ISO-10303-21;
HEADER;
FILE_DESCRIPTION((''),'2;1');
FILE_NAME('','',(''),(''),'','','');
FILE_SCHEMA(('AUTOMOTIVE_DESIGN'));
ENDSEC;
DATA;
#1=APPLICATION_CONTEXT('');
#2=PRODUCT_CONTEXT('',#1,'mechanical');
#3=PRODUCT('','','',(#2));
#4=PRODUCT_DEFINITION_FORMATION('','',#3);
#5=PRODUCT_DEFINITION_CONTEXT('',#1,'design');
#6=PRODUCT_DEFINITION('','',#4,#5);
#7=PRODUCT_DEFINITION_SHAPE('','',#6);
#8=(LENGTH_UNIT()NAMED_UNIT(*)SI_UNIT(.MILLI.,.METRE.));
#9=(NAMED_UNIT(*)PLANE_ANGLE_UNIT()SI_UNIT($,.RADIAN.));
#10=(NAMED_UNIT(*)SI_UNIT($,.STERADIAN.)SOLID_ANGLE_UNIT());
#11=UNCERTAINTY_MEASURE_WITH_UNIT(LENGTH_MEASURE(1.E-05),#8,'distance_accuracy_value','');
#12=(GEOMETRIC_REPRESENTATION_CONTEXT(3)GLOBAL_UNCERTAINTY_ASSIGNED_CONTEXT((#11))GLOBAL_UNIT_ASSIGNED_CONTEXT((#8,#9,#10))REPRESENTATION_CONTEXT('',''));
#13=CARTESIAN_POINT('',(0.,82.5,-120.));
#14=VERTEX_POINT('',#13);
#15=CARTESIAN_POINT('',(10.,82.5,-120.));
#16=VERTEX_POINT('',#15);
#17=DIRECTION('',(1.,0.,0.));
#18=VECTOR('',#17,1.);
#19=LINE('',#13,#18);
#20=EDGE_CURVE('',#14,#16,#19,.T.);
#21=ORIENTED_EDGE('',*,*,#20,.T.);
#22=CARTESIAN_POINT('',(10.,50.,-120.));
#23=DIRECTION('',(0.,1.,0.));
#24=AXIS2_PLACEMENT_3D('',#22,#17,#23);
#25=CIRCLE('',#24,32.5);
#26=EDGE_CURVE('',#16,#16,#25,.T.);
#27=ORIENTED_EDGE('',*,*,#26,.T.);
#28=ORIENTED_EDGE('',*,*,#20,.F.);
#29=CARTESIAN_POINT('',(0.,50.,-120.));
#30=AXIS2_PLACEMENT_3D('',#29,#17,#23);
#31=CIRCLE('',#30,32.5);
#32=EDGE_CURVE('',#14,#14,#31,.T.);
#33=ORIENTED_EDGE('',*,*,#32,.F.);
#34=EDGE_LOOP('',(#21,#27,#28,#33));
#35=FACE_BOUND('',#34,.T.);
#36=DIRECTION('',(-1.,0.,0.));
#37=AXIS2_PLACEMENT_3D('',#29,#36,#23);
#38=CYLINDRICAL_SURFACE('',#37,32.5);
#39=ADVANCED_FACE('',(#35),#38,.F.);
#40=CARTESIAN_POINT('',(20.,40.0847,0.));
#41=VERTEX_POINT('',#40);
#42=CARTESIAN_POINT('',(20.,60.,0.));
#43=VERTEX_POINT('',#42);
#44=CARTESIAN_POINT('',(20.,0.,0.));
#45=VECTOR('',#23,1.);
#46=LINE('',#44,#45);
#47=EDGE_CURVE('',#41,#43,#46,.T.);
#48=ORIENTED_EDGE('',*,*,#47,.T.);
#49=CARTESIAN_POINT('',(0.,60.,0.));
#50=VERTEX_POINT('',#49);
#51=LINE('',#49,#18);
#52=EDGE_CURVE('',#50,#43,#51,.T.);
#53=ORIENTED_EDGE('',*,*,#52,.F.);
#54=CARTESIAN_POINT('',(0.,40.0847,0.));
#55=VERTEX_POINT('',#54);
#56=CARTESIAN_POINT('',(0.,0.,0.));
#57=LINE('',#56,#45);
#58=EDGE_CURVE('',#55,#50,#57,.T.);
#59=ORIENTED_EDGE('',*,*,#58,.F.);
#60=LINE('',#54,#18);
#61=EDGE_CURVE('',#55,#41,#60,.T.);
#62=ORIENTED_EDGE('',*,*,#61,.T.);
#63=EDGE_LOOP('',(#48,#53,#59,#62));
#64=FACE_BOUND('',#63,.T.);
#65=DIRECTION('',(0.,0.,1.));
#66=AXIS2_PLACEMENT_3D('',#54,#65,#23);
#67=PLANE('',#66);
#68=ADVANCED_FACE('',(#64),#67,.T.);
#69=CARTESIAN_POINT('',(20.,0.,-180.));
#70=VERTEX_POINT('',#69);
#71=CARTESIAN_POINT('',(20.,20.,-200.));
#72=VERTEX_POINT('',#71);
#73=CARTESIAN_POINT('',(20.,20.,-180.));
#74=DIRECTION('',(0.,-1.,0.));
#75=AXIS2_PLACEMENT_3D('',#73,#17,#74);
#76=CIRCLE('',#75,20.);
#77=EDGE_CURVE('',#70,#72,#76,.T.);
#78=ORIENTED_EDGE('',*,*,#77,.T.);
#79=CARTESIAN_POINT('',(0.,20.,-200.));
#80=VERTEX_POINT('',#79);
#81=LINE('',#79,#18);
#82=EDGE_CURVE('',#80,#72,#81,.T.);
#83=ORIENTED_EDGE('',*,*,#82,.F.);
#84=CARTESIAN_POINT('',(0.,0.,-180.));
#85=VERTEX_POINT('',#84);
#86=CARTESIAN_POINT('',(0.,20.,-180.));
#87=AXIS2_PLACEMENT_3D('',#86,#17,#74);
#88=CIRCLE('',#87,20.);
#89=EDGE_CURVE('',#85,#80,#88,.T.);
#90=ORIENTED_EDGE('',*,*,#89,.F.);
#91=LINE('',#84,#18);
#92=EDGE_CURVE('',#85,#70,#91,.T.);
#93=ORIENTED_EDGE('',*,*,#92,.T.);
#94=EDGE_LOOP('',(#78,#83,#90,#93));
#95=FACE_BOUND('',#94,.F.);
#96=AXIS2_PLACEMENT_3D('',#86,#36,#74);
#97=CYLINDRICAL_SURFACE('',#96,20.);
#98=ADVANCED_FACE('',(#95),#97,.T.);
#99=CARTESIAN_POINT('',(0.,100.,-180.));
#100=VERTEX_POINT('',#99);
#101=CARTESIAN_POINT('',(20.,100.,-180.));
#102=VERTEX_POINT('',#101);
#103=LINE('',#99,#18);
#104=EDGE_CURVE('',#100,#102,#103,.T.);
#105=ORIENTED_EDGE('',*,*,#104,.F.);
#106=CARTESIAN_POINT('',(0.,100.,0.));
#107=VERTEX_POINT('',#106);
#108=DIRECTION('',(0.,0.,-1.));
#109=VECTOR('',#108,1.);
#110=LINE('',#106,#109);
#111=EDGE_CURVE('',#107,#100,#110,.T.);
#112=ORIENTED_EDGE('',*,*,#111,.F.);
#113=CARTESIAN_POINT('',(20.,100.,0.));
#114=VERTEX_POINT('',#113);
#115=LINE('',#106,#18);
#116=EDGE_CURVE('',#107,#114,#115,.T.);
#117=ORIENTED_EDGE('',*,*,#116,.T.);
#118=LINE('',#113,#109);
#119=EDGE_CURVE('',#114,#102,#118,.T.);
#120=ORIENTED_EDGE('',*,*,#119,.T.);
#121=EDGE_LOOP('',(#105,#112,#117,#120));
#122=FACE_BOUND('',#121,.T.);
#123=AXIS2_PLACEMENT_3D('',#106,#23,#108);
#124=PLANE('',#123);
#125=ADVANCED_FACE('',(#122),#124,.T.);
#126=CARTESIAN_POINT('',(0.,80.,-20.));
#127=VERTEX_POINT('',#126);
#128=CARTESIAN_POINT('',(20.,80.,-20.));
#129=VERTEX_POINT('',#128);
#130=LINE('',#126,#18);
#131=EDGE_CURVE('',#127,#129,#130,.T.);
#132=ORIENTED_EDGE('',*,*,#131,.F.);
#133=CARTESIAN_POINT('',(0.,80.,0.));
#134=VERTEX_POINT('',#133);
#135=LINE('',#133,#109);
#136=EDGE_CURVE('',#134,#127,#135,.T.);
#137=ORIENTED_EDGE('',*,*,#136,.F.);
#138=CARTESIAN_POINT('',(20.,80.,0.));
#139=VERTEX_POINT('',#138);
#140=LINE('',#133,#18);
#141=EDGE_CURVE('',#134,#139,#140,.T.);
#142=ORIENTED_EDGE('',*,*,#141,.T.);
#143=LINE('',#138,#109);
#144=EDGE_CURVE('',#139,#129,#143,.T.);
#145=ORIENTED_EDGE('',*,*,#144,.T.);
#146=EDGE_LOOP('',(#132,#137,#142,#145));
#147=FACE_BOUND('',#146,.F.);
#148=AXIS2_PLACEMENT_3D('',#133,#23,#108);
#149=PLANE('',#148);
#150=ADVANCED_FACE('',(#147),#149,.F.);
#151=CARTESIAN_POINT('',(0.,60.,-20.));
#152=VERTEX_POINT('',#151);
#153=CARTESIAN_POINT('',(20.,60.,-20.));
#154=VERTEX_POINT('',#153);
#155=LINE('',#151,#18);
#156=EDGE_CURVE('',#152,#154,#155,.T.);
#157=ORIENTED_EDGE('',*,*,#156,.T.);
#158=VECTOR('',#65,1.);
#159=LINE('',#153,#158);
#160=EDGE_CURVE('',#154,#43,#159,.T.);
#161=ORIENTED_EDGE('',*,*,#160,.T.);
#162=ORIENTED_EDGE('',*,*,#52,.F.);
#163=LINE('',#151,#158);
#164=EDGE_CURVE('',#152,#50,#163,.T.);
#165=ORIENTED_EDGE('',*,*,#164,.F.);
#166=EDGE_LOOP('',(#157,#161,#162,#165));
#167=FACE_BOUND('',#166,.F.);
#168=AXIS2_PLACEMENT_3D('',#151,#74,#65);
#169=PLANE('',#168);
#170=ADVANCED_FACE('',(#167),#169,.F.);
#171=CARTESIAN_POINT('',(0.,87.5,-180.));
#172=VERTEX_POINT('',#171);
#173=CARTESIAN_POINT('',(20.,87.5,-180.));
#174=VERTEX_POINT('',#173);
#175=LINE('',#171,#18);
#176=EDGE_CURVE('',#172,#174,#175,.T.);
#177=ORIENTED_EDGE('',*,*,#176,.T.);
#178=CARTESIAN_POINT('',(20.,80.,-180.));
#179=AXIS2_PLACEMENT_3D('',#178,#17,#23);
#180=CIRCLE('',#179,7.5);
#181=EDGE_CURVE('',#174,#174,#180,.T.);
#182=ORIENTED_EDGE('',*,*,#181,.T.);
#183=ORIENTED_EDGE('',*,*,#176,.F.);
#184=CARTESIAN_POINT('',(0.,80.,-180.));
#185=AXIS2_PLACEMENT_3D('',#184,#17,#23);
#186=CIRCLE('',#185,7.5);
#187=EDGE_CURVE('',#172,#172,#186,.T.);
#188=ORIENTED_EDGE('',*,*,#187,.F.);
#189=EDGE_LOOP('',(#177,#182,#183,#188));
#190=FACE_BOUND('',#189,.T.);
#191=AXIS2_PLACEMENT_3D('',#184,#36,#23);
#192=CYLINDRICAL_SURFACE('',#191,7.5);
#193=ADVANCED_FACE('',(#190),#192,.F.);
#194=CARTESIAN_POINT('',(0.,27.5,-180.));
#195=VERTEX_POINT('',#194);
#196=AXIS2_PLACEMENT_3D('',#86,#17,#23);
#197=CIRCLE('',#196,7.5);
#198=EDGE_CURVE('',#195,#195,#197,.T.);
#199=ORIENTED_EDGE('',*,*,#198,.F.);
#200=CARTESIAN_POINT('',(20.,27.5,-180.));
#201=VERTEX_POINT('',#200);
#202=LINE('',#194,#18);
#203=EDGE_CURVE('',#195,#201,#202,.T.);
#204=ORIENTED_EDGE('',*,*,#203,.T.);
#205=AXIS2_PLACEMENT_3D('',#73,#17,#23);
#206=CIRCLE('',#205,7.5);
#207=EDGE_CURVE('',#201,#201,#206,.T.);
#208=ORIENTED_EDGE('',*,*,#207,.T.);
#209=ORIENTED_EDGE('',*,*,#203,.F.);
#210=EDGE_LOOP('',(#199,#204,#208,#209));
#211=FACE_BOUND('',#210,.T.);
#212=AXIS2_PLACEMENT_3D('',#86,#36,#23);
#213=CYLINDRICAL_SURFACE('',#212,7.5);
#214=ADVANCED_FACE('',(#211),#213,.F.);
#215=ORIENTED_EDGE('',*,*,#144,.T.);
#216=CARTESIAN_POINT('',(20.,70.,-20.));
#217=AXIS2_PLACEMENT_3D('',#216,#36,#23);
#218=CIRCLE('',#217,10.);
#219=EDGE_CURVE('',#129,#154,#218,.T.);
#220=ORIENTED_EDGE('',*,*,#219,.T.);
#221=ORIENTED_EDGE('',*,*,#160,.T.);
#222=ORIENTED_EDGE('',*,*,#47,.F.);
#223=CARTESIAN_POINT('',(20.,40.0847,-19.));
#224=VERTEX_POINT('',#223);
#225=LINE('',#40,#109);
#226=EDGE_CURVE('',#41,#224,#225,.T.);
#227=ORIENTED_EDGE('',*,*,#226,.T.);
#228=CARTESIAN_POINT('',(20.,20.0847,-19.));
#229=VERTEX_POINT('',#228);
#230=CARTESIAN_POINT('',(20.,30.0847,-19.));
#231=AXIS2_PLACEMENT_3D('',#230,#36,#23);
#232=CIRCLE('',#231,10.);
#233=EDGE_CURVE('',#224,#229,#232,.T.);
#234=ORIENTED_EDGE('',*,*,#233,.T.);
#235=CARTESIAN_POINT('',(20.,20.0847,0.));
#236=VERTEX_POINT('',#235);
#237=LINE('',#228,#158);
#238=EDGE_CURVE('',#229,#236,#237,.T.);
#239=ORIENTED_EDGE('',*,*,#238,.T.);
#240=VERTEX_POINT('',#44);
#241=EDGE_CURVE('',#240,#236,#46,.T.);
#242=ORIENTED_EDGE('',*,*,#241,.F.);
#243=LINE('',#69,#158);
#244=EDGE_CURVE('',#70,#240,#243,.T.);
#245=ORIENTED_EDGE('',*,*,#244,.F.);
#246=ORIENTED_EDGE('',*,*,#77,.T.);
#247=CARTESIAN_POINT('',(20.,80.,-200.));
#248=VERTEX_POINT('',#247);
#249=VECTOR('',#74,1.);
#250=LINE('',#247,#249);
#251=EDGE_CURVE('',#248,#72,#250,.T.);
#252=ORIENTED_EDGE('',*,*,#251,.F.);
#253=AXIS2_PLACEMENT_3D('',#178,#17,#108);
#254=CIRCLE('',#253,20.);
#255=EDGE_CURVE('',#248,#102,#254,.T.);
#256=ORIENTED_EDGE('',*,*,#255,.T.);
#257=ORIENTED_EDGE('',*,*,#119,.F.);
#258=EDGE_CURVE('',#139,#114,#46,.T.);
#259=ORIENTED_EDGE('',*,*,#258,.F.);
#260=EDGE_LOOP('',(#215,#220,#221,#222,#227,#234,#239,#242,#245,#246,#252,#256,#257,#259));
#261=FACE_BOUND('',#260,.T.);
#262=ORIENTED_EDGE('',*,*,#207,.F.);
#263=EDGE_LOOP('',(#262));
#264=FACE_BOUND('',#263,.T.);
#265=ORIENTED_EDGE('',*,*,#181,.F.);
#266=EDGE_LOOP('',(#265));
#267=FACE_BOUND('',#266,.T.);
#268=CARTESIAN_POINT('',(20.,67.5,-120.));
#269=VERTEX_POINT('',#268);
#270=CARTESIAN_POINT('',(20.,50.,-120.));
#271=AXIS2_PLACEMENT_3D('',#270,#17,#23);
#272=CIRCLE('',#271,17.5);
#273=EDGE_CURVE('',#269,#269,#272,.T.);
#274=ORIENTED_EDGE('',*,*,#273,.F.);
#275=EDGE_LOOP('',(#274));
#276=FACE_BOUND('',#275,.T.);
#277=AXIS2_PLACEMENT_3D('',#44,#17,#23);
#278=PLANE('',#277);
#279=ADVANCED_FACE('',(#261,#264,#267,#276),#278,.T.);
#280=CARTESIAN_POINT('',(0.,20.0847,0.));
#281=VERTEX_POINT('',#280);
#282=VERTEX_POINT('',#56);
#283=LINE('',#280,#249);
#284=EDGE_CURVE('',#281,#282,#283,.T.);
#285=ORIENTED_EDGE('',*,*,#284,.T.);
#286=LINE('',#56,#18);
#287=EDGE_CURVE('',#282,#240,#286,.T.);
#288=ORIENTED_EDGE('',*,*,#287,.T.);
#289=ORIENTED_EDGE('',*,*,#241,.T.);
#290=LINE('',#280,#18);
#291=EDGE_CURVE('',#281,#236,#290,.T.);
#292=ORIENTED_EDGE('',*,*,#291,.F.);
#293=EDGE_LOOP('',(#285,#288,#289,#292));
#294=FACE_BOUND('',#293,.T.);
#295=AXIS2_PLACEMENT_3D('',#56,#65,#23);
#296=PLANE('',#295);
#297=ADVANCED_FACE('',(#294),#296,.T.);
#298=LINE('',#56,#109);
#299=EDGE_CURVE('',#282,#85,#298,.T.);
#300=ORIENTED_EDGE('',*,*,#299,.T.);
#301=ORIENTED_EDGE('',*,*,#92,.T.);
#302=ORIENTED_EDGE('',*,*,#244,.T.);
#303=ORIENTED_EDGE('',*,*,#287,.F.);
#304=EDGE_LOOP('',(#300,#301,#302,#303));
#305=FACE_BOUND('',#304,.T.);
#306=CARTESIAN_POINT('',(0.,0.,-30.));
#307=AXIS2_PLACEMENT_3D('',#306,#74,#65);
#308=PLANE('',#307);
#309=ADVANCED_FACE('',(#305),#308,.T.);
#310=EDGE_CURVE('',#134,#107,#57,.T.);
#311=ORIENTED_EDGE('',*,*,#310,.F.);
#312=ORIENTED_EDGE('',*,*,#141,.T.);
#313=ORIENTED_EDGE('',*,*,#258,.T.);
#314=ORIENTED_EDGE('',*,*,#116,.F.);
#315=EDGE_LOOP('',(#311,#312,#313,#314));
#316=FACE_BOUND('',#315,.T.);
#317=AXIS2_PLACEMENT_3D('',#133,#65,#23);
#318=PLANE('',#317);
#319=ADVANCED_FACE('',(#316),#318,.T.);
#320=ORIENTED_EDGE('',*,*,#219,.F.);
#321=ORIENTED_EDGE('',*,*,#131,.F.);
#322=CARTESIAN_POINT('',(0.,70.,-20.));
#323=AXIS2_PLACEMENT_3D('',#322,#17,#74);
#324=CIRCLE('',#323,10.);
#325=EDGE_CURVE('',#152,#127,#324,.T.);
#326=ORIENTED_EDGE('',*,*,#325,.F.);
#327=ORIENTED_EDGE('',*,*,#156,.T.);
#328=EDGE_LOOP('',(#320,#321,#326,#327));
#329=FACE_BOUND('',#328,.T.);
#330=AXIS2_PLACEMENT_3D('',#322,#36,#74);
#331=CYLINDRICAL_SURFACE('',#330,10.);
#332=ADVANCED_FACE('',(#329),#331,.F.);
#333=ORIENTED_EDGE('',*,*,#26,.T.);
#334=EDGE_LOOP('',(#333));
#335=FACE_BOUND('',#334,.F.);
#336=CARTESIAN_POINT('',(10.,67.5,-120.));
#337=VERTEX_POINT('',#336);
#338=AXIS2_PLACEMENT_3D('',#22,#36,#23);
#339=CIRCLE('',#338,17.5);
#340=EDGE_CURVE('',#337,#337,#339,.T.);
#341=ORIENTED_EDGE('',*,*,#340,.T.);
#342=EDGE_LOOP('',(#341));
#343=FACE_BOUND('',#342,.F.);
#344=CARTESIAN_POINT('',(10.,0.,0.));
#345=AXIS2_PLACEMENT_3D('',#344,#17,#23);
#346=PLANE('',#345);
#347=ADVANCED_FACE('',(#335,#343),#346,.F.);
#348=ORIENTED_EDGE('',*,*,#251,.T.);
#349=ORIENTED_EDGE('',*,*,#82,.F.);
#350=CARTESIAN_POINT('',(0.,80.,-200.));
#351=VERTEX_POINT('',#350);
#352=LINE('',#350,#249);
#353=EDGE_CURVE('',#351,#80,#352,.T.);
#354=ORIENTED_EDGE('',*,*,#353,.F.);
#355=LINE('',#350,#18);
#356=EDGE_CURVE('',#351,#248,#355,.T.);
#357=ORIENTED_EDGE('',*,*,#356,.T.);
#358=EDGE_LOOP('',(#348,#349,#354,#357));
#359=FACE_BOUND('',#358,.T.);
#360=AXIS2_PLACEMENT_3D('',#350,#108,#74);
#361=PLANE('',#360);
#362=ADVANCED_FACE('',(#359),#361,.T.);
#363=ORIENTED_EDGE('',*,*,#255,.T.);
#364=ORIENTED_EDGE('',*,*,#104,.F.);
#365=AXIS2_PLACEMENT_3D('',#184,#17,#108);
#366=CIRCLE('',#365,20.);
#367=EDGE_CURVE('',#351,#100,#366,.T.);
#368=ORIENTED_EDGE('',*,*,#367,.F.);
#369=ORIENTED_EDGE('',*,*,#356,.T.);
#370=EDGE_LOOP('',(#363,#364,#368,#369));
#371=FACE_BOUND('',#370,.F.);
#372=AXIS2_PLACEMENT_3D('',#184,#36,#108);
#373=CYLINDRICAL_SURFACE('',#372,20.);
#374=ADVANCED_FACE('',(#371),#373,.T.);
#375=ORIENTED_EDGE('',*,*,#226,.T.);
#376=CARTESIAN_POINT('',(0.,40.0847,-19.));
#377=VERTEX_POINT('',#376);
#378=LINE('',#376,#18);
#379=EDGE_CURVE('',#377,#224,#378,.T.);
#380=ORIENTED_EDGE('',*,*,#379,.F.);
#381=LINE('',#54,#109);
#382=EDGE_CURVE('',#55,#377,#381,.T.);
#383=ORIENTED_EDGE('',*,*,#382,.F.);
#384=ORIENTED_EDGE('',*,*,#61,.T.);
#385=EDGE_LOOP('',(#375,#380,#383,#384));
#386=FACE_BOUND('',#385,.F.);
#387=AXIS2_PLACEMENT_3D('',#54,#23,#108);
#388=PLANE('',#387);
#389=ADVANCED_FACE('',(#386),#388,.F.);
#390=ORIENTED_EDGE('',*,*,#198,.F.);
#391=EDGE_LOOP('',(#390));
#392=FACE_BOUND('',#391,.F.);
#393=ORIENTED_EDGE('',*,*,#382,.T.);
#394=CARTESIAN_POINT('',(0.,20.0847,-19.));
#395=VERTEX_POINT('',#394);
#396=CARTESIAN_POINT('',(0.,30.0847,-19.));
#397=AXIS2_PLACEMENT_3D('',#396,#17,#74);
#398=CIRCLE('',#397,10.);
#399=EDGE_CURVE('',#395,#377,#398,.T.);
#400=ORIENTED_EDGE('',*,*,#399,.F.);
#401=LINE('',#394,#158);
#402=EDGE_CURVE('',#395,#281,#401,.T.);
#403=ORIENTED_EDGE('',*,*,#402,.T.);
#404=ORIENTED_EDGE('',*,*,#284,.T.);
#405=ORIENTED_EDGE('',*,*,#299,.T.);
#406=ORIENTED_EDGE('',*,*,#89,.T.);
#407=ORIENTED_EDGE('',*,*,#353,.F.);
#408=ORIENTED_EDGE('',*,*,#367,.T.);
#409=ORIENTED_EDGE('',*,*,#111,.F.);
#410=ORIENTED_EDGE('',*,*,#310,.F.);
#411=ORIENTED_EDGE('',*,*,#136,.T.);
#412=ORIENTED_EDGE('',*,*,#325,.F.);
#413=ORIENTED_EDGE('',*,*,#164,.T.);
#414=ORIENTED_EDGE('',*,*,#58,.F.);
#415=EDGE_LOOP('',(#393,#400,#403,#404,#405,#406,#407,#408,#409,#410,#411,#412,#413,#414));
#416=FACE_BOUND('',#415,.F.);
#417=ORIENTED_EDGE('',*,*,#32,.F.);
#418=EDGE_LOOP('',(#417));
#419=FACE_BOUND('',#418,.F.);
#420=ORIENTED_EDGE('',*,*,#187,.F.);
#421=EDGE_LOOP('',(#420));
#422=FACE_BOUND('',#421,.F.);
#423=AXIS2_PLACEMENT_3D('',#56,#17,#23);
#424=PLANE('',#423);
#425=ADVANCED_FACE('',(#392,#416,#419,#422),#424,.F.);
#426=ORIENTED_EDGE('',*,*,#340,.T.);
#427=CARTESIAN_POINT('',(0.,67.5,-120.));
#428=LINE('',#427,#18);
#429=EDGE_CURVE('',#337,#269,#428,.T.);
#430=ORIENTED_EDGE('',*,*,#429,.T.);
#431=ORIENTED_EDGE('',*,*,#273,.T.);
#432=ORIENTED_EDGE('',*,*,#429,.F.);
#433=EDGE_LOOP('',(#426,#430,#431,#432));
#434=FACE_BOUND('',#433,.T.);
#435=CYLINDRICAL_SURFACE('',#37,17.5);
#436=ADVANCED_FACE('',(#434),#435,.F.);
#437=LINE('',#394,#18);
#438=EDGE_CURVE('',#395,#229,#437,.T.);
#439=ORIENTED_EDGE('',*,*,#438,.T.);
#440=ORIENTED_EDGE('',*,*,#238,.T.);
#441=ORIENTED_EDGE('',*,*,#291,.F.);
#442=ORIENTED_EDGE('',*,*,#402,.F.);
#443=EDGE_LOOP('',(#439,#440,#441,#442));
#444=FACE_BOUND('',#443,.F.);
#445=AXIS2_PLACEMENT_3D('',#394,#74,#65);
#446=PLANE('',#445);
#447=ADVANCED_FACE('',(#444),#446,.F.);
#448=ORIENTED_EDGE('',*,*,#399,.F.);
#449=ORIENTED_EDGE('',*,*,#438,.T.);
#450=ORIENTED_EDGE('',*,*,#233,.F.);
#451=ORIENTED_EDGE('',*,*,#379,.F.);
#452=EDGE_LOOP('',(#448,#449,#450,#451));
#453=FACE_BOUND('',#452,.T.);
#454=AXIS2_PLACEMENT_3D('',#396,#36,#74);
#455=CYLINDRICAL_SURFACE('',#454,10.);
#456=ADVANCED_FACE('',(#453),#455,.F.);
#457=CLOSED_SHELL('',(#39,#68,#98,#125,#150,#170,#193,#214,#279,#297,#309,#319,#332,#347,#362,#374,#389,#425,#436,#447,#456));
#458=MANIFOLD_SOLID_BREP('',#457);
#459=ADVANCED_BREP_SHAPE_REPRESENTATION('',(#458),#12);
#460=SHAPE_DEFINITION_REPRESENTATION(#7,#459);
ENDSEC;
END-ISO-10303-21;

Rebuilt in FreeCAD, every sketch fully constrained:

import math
import FreeCAD as App
import Part
import Sketcher

doc = App.newDocument("Part")
body = doc.addObject("PartDesign::Body", "Body")

sketch1 = body.newObject("Sketcher::SketchObject", "Sketch")
sketch1.AttachmentSupport = (doc.getObject("YZ_Plane"), [""])
sketch1.MapMode = "FlatFace"
sketch1.addGeometry(Part.LineSegment(App.Vector(0, 0, 0), App.Vector(0, -180, 0)), False)
sketch1.addGeometry(Part.ArcOfCircle(Part.Circle(App.Vector(20, -180, 0), App.Vector(0, 0, 1), 20), math.radians(180), math.radians(270)), False)
sketch1.addGeometry(Part.LineSegment(App.Vector(20, -200, 0), App.Vector(80, -200, 0)), False)
sketch1.addGeometry(Part.ArcOfCircle(Part.Circle(App.Vector(80, -180, 0), App.Vector(0, 0, 1), 20), math.radians(-90), math.radians(0)), False)
sketch1.addGeometry(Part.LineSegment(App.Vector(100, -180, 0), App.Vector(100, 0, 0)), False)
sketch1.addGeometry(Part.LineSegment(App.Vector(100, 0, 0), App.Vector(80, 0, 0)), False)
sketch1.addGeometry(Part.LineSegment(App.Vector(80, 0, 0), App.Vector(80, -20, 0)), False)
sketch1.addGeometry(Part.ArcOfCircle(Part.Circle(App.Vector(70, -20, 0), App.Vector(0, 0, 1), 10), math.radians(180), math.radians(360)), False)
sketch1.addGeometry(Part.LineSegment(App.Vector(60, -20, 0), App.Vector(60, 0, 0)), False)
sketch1.addGeometry(Part.LineSegment(App.Vector(60, 0, 0), App.Vector(40, 0, 0)), False)
sketch1.addGeometry(Part.LineSegment(App.Vector(40, 0, 0), App.Vector(40, -19, 0)), False)
sketch1.addGeometry(Part.ArcOfCircle(Part.Circle(App.Vector(30, -19, 0), App.Vector(0, 0, 1), 10), math.radians(180), math.radians(360)), False)
sketch1.addGeometry(Part.LineSegment(App.Vector(20, -19, 0), App.Vector(20, 0, 0)), False)
sketch1.addGeometry(Part.LineSegment(App.Vector(20, 0, 0), App.Vector(0, 0, 0)), False)
sketch1.addGeometry(Part.Circle(App.Vector(20, -180, 0), App.Vector(0, 0, 1), 8), False)
sketch1.addGeometry(Part.Circle(App.Vector(80, -180, 0), App.Vector(0, 0, 1), 8), False)
sketch1.addGeometry(Part.Circle(App.Vector(50, -120, 0), App.Vector(0, 0, 1), 18), False)
sketch1.addConstraint(Sketcher.Constraint("Tangent", 0, 2, 1, 1))
sketch1.addConstraint(Sketcher.Constraint("Tangent", 1, 2, 2, 1))
sketch1.addConstraint(Sketcher.Constraint("Tangent", 2, 2, 3, 1))
sketch1.addConstraint(Sketcher.Constraint("Tangent", 3, 2, 4, 1))
sketch1.addConstraint(Sketcher.Constraint("Coincident", 4, 2, 5, 1))
sketch1.addConstraint(Sketcher.Constraint("Coincident", 5, 2, 6, 1))
sketch1.addConstraint(Sketcher.Constraint("Tangent", 6, 2, 7, 2))
sketch1.addConstraint(Sketcher.Constraint("Tangent", 7, 1, 8, 1))
sketch1.addConstraint(Sketcher.Constraint("Coincident", 8, 2, 9, 1))
sketch1.addConstraint(Sketcher.Constraint("Coincident", 9, 2, 10, 1))
sketch1.addConstraint(Sketcher.Constraint("Tangent", 10, 2, 11, 2))
sketch1.addConstraint(Sketcher.Constraint("Tangent", 11, 1, 12, 1))
sketch1.addConstraint(Sketcher.Constraint("Coincident", 12, 2, 13, 1))
sketch1.addConstraint(Sketcher.Constraint("Coincident", 13, 2, 0, 1))
sketch1.addConstraint(Sketcher.Constraint("Vertical", 0))
sketch1.addConstraint(Sketcher.Constraint("Horizontal", 2))
sketch1.addConstraint(Sketcher.Constraint("Vertical", 4))
sketch1.addConstraint(Sketcher.Constraint("Horizontal", 5))
sketch1.addConstraint(Sketcher.Constraint("Vertical", 6))
sketch1.addConstraint(Sketcher.Constraint("Vertical", 8))
sketch1.addConstraint(Sketcher.Constraint("Horizontal", 9))
sketch1.addConstraint(Sketcher.Constraint("Vertical", 10))
sketch1.addConstraint(Sketcher.Constraint("Vertical", 12))
sketch1.addConstraint(Sketcher.Constraint("Horizontal", 13))
sketch1.addConstraint(Sketcher.Constraint("Coincident", 13, 2, -1, 1))
sketch1.addConstraint(Sketcher.Constraint("Coincident", 14, 3, 1, 3))
sketch1.addConstraint(Sketcher.Constraint("Coincident", 15, 3, 3, 3))
sketch1.addConstraint(Sketcher.Constraint("Equal", 1, 3))
sketch1.addConstraint(Sketcher.Constraint("Equal", 7, 11))
sketch1.addConstraint(Sketcher.Constraint("Equal", 14, 15))
sketch1.addConstraint(Sketcher.Constraint("PointOnObject", 4, 2, -1))
sketch1.addConstraint(Sketcher.Constraint("PointOnObject", 8, 2, -1))
sketch1.addConstraint(Sketcher.Constraint("Vertical", 2, 2, 5, 2))
sketch1.addConstraint(Sketcher.Constraint("Equal", 5, 6))
sketch1.addConstraint(Sketcher.Constraint("Diameter", 14, 15.0))
sketch1.addConstraint(Sketcher.Constraint("Diameter", 16, 35.0))
sketch1.addConstraint(Sketcher.Constraint("Radius", 1, 20.0))
sketch1.addConstraint(Sketcher.Constraint("Radius", 7, 10.0))
sketch1.addConstraint(Sketcher.Constraint("DistanceX", -1, 1, 3, 3, 80.0))
sketch1.addConstraint(Sketcher.Constraint("DistanceX", -1, 1, 16, 3, 50.0))
sketch1.addConstraint(Sketcher.Constraint("DistanceY", 1, 2, -1, 1, 200.0))
sketch1.addConstraint(Sketcher.Constraint("DistanceY", 16, 3, 7, 3, 100.0))
sketch1.addConstraint(Sketcher.Constraint("DistanceY", 10, 2, 10, 1, 19.0))
sketch1.addConstraint(Sketcher.Constraint("DistanceX", 9, 2, 9, 1, 19.9153))
pad1 = body.newObject("PartDesign::Pad", "Pad")
pad1.Profile = sketch1
pad1.Length = 20

sketch2 = body.newObject("Sketcher::SketchObject", "Sketch001")
sketch2.AttachmentSupport = (doc.getObject("YZ_Plane"), [""])
sketch2.MapMode = "FlatFace"
sketch2.addGeometry(Part.Circle(App.Vector(50, -120, 0), App.Vector(0, 0, 1), 32), False)
sketch2.addConstraint(Sketcher.Constraint("Diameter", 0, 65.0))
sketch2.addConstraint(Sketcher.Constraint("DistanceX", -1, 1, 0, 3, 50.0))
sketch2.addConstraint(Sketcher.Constraint("DistanceY", 0, 3, -1, 1, 120.0))
pocket1 = body.newObject("PartDesign::Pocket", "Pocket")
pocket1.Profile = sketch2
pocket1.Length = 10
pocket1.Reversed = True

doc.recompute()
